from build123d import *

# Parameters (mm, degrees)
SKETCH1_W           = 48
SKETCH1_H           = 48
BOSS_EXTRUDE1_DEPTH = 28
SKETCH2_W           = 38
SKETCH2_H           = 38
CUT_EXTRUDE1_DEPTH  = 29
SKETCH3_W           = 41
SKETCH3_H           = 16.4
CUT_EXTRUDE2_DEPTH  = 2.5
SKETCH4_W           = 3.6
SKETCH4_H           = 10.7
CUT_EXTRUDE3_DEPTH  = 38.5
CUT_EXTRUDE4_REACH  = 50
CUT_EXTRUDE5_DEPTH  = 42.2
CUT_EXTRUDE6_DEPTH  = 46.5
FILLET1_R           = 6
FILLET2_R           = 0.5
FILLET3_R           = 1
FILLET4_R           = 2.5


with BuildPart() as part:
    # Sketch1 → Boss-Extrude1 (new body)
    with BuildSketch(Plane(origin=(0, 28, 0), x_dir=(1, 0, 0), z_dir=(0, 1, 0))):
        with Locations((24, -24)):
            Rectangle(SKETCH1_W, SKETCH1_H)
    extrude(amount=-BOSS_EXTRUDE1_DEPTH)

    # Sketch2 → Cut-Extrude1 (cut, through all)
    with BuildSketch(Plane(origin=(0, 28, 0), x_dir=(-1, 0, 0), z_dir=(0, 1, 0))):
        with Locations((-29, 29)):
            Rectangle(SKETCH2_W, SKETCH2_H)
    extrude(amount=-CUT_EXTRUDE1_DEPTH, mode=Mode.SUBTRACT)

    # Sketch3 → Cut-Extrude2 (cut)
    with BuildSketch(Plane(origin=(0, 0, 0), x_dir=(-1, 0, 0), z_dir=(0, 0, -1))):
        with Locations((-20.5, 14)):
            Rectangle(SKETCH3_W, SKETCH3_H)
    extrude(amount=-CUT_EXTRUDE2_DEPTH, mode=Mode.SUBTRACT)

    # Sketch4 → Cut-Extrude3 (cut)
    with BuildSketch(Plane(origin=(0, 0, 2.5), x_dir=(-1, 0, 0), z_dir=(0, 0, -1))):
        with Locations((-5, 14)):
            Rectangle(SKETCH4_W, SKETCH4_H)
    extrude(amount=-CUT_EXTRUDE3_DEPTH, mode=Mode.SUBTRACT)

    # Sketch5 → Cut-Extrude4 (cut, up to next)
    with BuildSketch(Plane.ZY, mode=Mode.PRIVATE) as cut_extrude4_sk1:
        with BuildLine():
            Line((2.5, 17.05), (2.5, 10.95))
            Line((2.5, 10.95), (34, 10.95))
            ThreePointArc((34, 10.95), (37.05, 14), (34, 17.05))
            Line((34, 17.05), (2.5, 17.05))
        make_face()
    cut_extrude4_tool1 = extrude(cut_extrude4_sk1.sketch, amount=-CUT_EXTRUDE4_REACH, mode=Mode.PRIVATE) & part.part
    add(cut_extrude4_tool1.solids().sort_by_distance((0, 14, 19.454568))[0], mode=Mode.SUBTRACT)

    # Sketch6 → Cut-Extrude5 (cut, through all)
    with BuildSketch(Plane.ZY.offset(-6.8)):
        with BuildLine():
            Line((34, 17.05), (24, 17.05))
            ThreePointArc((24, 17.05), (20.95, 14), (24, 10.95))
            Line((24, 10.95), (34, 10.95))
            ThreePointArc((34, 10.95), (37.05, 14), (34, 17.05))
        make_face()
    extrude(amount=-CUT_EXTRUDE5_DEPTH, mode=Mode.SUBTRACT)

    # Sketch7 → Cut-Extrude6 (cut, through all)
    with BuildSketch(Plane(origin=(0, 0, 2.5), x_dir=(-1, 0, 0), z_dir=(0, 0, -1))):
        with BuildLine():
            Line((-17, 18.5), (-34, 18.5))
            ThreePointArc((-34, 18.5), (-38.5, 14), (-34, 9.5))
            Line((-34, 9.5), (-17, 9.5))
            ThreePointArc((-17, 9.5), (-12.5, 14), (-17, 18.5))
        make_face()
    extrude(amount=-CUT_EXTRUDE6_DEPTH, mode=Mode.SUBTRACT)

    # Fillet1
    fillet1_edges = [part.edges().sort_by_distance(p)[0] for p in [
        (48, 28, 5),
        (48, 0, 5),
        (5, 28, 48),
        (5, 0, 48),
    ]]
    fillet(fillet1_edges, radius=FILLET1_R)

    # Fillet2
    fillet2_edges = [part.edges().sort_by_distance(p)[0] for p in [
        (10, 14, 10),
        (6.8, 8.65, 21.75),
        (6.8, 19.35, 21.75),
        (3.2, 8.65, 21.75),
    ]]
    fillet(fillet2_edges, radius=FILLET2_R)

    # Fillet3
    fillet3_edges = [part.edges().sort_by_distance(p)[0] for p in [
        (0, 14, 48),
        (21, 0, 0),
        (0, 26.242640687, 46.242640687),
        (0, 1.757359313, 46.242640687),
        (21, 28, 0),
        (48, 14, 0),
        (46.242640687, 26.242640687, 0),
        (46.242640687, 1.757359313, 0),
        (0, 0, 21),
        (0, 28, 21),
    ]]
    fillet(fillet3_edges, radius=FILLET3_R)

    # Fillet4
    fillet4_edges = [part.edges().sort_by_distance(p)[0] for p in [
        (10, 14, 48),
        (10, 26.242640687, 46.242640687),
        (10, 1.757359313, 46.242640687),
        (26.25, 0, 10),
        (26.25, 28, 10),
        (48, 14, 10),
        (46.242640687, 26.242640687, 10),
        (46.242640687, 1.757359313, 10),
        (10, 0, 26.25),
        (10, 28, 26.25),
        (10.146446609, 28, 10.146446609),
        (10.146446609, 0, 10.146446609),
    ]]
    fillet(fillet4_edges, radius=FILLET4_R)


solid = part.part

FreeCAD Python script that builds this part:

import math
import FreeCAD as App
import Part
import Sketcher


def edges_at(feature, points):
    """Names of the edges that pass closest to the given points."""
    edges = feature.Shape.Edges
    near = lambda p: min(range(len(edges)), key=lambda i: edges[i].distToShape(Part.Vertex(*p))[0])
    return sorted({f"Edge{near(p) + 1}" for p in points})

doc = App.newDocument("Part")
body = doc.addObject("PartDesign::Body", "Body")

# Sketch on XZ plane
sketch1 = body.newObject("Sketcher::SketchObject", "Sketch")
sketch1.AttachmentSupport = (doc.getObject("XZ_Plane"), [""])
sketch1.MapMode = "FlatFace"
sketch1.AttachmentOffset = App.Placement(App.Vector(0, 0, -28), App.Rotation())
sketch1.addGeometry(Part.LineSegment(App.Vector(0, 0, 0), App.Vector(0, 48, 0)), False)
sketch1.addGeometry(Part.LineSegment(App.Vector(0, 48, 0), App.Vector(48, 48, 0)), False)
sketch1.addGeometry(Part.LineSegment(App.Vector(48, 48, 0), App.Vector(48, 0, 0)), False)
sketch1.addGeometry(Part.LineSegment(App.Vector(48, 0, 0), App.Vector(0, 0, 0)), False)
sketch1.addConstraint(Sketcher.Constraint("Coincident", 0, 2, 1, 1))
sketch1.addConstraint(Sketcher.Constraint("Coincident", 1, 2, 2, 1))
sketch1.addConstraint(Sketcher.Constraint("Coincident", 2, 2, 3, 1))
sketch1.addConstraint(Sketcher.Constraint("Coincident", 3, 2, 0, 1))
sketch1.addConstraint(Sketcher.Constraint("Vertical", 0))
sketch1.addConstraint(Sketcher.Constraint("Horizontal", 1))
sketch1.addConstraint(Sketcher.Constraint("Vertical", 2))
sketch1.addConstraint(Sketcher.Constraint("Horizontal", 3))
sketch1.addConstraint(Sketcher.Constraint("Coincident", 3, 2, -1, 1))
sketch1.addConstraint(Sketcher.Constraint("Equal", 3, 0))
sketch1.addConstraint(Sketcher.Constraint("DistanceX", 1, 1, 1, 2, 48.0))
pad1 = body.newObject("PartDesign::Pad", "Pad")
pad1.Profile = sketch1
pad1.Length = 28

# Sketch on XZ plane
sketch2 = body.newObject("Sketcher::SketchObject", "Sketch001")
sketch2.AttachmentSupport = (doc.getObject("XZ_Plane"), [""])
sketch2.MapMode = "FlatFace"
sketch2.AttachmentOffset = App.Placement(App.Vector(0, 0, -28), App.Rotation())
sketch2.addGeometry(Part.LineSegment(App.Vector(48, 48, 0), App.Vector(48, 10, 0)), False)
sketch2.addGeometry(Part.LineSegment(App.Vector(48, 10, 0), App.Vector(10, 10, 0)), False)
sketch2.addGeometry(Part.LineSegment(App.Vector(10, 10, 0), App.Vector(10, 48, 0)), False)
sketch2.addGeometry(Part.LineSegment(App.Vector(10, 48, 0), App.Vector(48, 48, 0)), False)
sketch2.addConstraint(Sketcher.Constraint("Coincident", 0, 2, 1, 1))
sketch2.addConstraint(Sketcher.Constraint("Coincident", 1, 2, 2, 1))
sketch2.addConstraint(Sketcher.Constraint("Coincident", 2, 2, 3, 1))
sketch2.addConstraint(Sketcher.Constraint("Coincident", 3, 2, 0, 1))
sketch2.addConstraint(Sketcher.Constraint("Vertical", 0))
sketch2.addConstraint(Sketcher.Constraint("Horizontal", 1))
sketch2.addConstraint(Sketcher.Constraint("Vertical", 2))
sketch2.addConstraint(Sketcher.Constraint("Horizontal", 3))
sketch2.addConstraint(Sketcher.Constraint("Equal", 3, 0))
sketch2.addConstraint(Sketcher.Constraint("DistanceX", 1, 2, 1, 1, 38.0))
sketch2.addConstraint(Sketcher.Constraint("DistanceX", -1, 1, 0, 2, 48.0))
sketch2.addConstraint(Sketcher.Constraint("DistanceY", -1, 1, 0, 2, 10.0))
pocket1 = body.newObject("PartDesign::Pocket", "Pocket")
pocket1.Profile = sketch2
pocket1.Type = "ThroughAll"
pocket1.Reversed = True

# Sketch on XY plane
sketch3 = body.newObject("Sketcher::SketchObject", "Sketch002")
sketch3.AttachmentSupport = (doc.getObject("XY_Plane"), [""])
sketch3.MapMode = "FlatFace"
sketch3.addGeometry(Part.LineSegment(App.Vector(41, 22, 0), App.Vector(41, 6, 0)), False)
sketch3.addGeometry(Part.LineSegment(App.Vector(41, 6, 0), App.Vector(0, 6, 0)), False)
sketch3.addGeometry(Part.LineSegment(App.Vector(0, 6, 0), App.Vector(0, 22, 0)), False)
sketch3.addGeometry(Part.LineSegment(App.Vector(0, 22, 0), App.Vector(41, 22, 0)), False)
sketch3.addConstraint(Sketcher.Constraint("Coincident", 0, 2, 1, 1))
sketch3.addConstraint(Sketcher.Constraint("Coincident", 1, 2, 2, 1))
sketch3.addConstraint(Sketcher.Constraint("Coincident", 2, 2, 3, 1))
sketch3.addConstraint(Sketcher.Constraint("Coincident", 3, 2, 0, 1))
sketch3.addConstraint(Sketcher.Constraint("Vertical", 0))
sketch3.addConstraint(Sketcher.Constraint("Horizontal", 1))
sketch3.addConstraint(Sketcher.Constraint("Vertical", 2))
sketch3.addConstraint(Sketcher.Constraint("Horizontal", 3))
sketch3.addConstraint(Sketcher.Constraint("PointOnObject", 1, 2, -2))
sketch3.addConstraint(Sketcher.Constraint("DistanceX", 1, 2, 1, 1, 41.0))
sketch3.addConstraint(Sketcher.Constraint("DistanceY", 0, 2, 0, 1, 16.4))
sketch3.addConstraint(Sketcher.Constraint("DistanceY", -1, 1, 0, 2, 5.8))
pocket2 = body.newObject("PartDesign::Pocket", "Pocket001")
pocket2.Profile = sketch3
pocket2.Length = 2.5
pocket2.Reversed = True

# Sketch on XY plane
sketch4 = body.newObject("Sketcher::SketchObject", "Sketch003")
sketch4.AttachmentSupport = (doc.getObject("XY_Plane"), [""])
sketch4.MapMode = "FlatFace"
sketch4.AttachmentOffset = App.Placement(App.Vector(0, 0, 2.5), App.Rotation())
sketch4.addGeometry(Part.LineSegment(App.Vector(6.8, 19.4, 0), App.Vector(6.8, 8.7, 0)), False)
sketch4.addGeometry(Part.LineSegment(App.Vector(6.8, 8.7, 0), App.Vector(3.2, 8.7, 0)), False)
sketch4.addGeometry(Part.LineSegment(App.Vector(3.2, 8.7, 0), App.Vector(3.2, 19.4, 0)), False)
sketch4.addGeometry(Part.LineSegment(App.Vector(3.2, 19.4, 0), App.Vector(6.8, 19.4, 0)), False)
sketch4.addConstraint(Sketcher.Constraint("Coincident", 0, 2, 1, 1))
sketch4.addConstraint(Sketcher.Constraint("Coincident", 1, 2, 2, 1))
sketch4.addConstraint(Sketcher.Constraint("Coincident", 2, 2, 3, 1))
sketch4.addConstraint(Sketcher.Constraint("Coincident", 3, 2, 0, 1))
sketch4.addConstraint(Sketcher.Constraint("Vertical", 0))
sketch4.addConstraint(Sketcher.Constraint("Horizontal", 1))
sketch4.addConstraint(Sketcher.Constraint("Vertical", 2))
sketch4.addConstraint(Sketcher.Constraint("Horizontal", 3))
sketch4.addConstraint(Sketcher.Constraint("DistanceX", 1, 2, 1, 1, 3.6))
sketch4.addConstraint(Sketcher.Constraint("DistanceY", 0, 2, 0, 1, 10.7))
sketch4.addConstraint(Sketcher.Constraint("DistanceX", -1, 1, 0, 2, 6.8))
sketch4.addConstraint(Sketcher.Constraint("DistanceY", -1, 1, 0, 2, 8.65))
pocket3 = body.newObject("PartDesign::Pocket", "Pocket002")
pocket3.Profile = sketch4
pocket3.Length = 38.5
pocket3.Reversed = True

# Sketch on YZ plane
sketch5 = body.newObject("Sketcher::SketchObject", "Sketch004")
sketch5.AttachmentSupport = (doc.getObject("YZ_Plane"), [""])
sketch5.MapMode = "FlatFace"
sketch5.addGeometry(Part.LineSegment(App.Vector(17.1, 2.5, 0), App.Vector(10.9, 2.5, 0)), False)
sketch5.addGeometry(Part.LineSegment(App.Vector(10.9, 2.5, 0), App.Vector(10.9, 34, 0)), False)
sketch5.addGeometry(Part.ArcOfCircle(Part.Circle(App.Vector(14, 34, 0), App.Vector(0, 0, 1), 3), math.radians(0), math.radians(180)), False)
sketch5.addGeometry(Part.LineSegment(App.Vector(17.1, 34, 0), App.Vector(17.1, 2.5, 0)), False)
sketch5.addConstraint(Sketcher.Constraint("Coincident", 0, 2, 1, 1))
sketch5.addConstraint(Sketcher.Constraint("Tangent", 1, 2, 2, 2))
sketch5.addConstraint(Sketcher.Constraint("Tangent", 2, 1, 3, 1))
sketch5.addConstraint(Sketcher.Constraint("Coincident", 3, 2, 0, 1))
sketch5.addConstraint(Sketcher.Constraint("Horizontal", 0))
sketch5.addConstraint(Sketcher.Constraint("Vertical", 1))
sketch5.addConstraint(Sketcher.Constraint("Vertical", 3))
sketch5.addConstraint(Sketcher.Constraint("Radius", 2, 3.05))
sketch5.addConstraint(Sketcher.Constraint("DistanceY", 1, 1, 1, 2, 31.5))
sketch5.addConstraint(Sketcher.Constraint("DistanceX", -1, 1, 2, 3, 14.0))
sketch5.addConstraint(Sketcher.Constraint("DistanceY", -1, 1, 2, 3, 34.0))
pocket4 = body.newObject("PartDesign::Pocket", "Pocket003")
pocket4.Profile = sketch5
pocket4.Type = "UpToFirst"
pocket4.Reversed = True

# Sketch on YZ plane
sketch6 = body.newObject("Sketcher::SketchObject", "Sketch005")
sketch6.AttachmentSupport = (doc.getObject("YZ_Plane"), [""])
sketch6.MapMode = "FlatFace"
sketch6.AttachmentOffset = App.Placement(App.Vector(0, 0, 6.8), App.Rotation())
sketch6.addGeometry(Part.LineSegment(App.Vector(17.1, 34, 0), App.Vector(17.1, 24, 0)), False)
sketch6.addGeometry(Part.ArcOfCircle(Part.Circle(App.Vector(14, 24, 0), App.Vector(0, 0, 1), 3), math.radians(180), math.radians(360)), False)
sketch6.addGeometry(Part.LineSegment(App.Vector(10.9, 24, 0), App.Vector(10.9, 34, 0)), False)
sketch6.addGeometry(Part.ArcOfCircle(Part.Circle(App.Vector(14, 34, 0), App.Vector(0, 0, 1), 3), math.radians(0), math.radians(180)), False)
sketch6.addConstraint(Sketcher.Constraint("Tangent", 0, 2, 1, 2))
sketch6.addConstraint(Sketcher.Constraint("Tangent", 1, 1, 2, 1))
sketch6.addConstraint(Sketcher.Constraint("Tangent", 2, 2, 3, 2))
sketch6.addConstraint(Sketcher.Constraint("Tangent", 3, 1, 0, 1))
sketch6.addConstraint(Sketcher.Constraint("Vertical", 0))
sketch6.addConstraint(Sketcher.Constraint("Vertical", 2))
sketch6.addConstraint(Sketcher.Constraint("DistanceY", 0, 2, 0, 1, 10.0))
sketch6.addConstraint(Sketcher.Constraint("Radius", 1, 3.05))
sketch6.addConstraint(Sketcher.Constraint("DistanceX", -1, 1, 1, 3, 14.0))
sketch6.addConstraint(Sketcher.Constraint("DistanceY", -1, 1, 1, 3, 24.0))
pocket5 = body.newObject("PartDesign::Pocket", "Pocket004")
pocket5.Profile = sketch6
pocket5.Type = "ThroughAll"
pocket5.Reversed = True

# Sketch on XY plane
sketch7 = body.newObject("Sketcher::SketchObject", "Sketch006")
sketch7.AttachmentSupport = (doc.getObject("XY_Plane"), [""])
sketch7.MapMode = "FlatFace"
sketch7.AttachmentOffset = App.Placement(App.Vector(0, 0, 2.5), App.Rotation())
sketch7.addGeometry(Part.LineSegment(App.Vector(17, 18.5, 0), App.Vector(34, 18.5, 0)), False)
sketch7.addGeometry(Part.ArcOfCircle(Part.Circle(App.Vector(34, 14, 0), App.Vector(0, 0, 1), 4.5), math.radians(-90), math.radians(90)), False)
sketch7.addGeometry(Part.LineSegment(App.Vector(34, 9.5, 0), App.Vector(17, 9.5, 0)), False)
sketch7.addGeometry(Part.ArcOfCircle(Part.Circle(App.Vector(17, 14, 0), App.Vector(0, 0, 1), 4.5), math.radians(90), math.radians(270)), False)
sketch7.addConstraint(Sketcher.Constraint("Tangent", 0, 2, 1, 2))
sketch7.addConstraint(Sketcher.Constraint("Tangent", 1, 1, 2, 1))
sketch7.addConstraint(Sketcher.Constraint("Tangent", 2, 2, 3, 2))
sketch7.addConstraint(Sketcher.Constraint("Tangent", 3, 1, 0, 1))
sketch7.addConstraint(Sketcher.Constraint("Horizontal", 0))
sketch7.addConstraint(Sketcher.Constraint("Horizontal", 2))
sketch7.addConstraint(Sketcher.Constraint("Radius", 1, 4.5))
sketch7.addConstraint(Sketcher.Constraint("DistanceX", 0, 1, 0, 2, 17.0))
sketch7.addConstraint(Sketcher.Constraint("DistanceX", -1, 1, 1, 3, 34.0))
sketch7.addConstraint(Sketcher.Constraint("DistanceY", -1, 1, 1, 3, 14.0))
pocket6 = body.newObject("PartDesign::Pocket", "Pocket005")
pocket6.Profile = sketch7
pocket6.Type = "ThroughAll"
pocket6.Reversed = True
doc.recompute()

fillet = body.newObject("PartDesign::Fillet", "Fillet")
fillet.Base = (pocket6, edges_at(pocket6, [
    (48, 28, 5),
    (48, 0, 5),
    (5, 28, 48),
    (5, 0, 48),
]))
fillet.Radius = 6
doc.recompute()

fillet2 = body.newObject("PartDesign::Fillet", "Fillet001")
fillet2.Base = (fillet, edges_at(fillet, [
    (10, 14, 10),
    (6.8, 8.65, 21.75),
    (6.8, 19.35, 21.75),
    (3.2, 8.65, 21.75),
]))
fillet2.Radius = 0.5
doc.recompute()

fillet3 = body.newObject("PartDesign::Fillet", "Fillet002")
fillet3.Base = (fillet2, edges_at(fillet2, [
    (0, 14, 48),
    (21, 0, 0),
    (0, 26.243, 46.243),
    (0, 1.757, 46.243),
    (21, 28, 0),
    (48, 14, 0),
    (46.243, 26.243, 0),
    (46.243, 1.757, 0),
    (0, 0, 21),
    (0, 28, 21),
]))
fillet3.Radius = 1
doc.recompute()

fillet4 = body.newObject("PartDesign::Fillet", "Fillet003")
fillet4.Base = (fillet3, edges_at(fillet3, [
    (10, 14, 48),
    (10, 26.243, 46.243),
    (10, 1.757, 46.243),
    (26.25, 0, 10),
    (26.25, 28, 10),
    (48, 14, 10),
    (46.243, 26.243, 10),
    (46.243, 1.757, 10),
    (10, 0, 26.25),
    (10, 28, 26.25),
    (10.146, 28, 10.146),
    (10.146, 0, 10.146),
]))
fillet4.Radius = 2.5

doc.recompute()
